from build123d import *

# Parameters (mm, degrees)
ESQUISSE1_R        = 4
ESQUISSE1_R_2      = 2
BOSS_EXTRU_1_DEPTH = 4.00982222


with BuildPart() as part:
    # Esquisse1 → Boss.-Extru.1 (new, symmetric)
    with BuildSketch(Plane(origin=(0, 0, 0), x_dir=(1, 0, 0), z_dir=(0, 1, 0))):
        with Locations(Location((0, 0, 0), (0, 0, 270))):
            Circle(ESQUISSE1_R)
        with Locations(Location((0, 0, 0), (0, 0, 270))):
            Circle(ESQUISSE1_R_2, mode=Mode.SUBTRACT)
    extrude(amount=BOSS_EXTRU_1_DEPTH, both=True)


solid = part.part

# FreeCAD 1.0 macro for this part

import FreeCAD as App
import Part
import Sketcher
from FreeCAD import Vector

doc = App.newDocument("Part")
body = doc.addObject("PartDesign::Body", "Body")

# Sketch on XZ plane
sketch1 = body.newObject("Sketcher::SketchObject", "Sketch")
sketch1.AttachmentSupport = (doc.getObject("XZ_Plane"), [""])
sketch1.MapMode = "FlatFace"
sketch1.addGeometry([
    Part.Circle(Vector(0, 0, 0), Vector(0, 0, 1), 4),
    Part.Circle(Vector(0, 0, 0), Vector(0, 0, 1), 2),
], False)
sketch1.addConstraint([
    Sketcher.Constraint("Coincident", 0, 3, -1, 1),
    Sketcher.Constraint("Coincident", 1, 3, -1, 1),
    Sketcher.Constraint("Diameter", 0, 8.0),
    Sketcher.Constraint("Diameter", 1, 4.0),
])
pad1 = body.newObject("PartDesign::Pad", "Pad")
pad1.Profile = sketch1
pad1.Length = 8.019644
pad1.Midplane = True

doc.recompute()
